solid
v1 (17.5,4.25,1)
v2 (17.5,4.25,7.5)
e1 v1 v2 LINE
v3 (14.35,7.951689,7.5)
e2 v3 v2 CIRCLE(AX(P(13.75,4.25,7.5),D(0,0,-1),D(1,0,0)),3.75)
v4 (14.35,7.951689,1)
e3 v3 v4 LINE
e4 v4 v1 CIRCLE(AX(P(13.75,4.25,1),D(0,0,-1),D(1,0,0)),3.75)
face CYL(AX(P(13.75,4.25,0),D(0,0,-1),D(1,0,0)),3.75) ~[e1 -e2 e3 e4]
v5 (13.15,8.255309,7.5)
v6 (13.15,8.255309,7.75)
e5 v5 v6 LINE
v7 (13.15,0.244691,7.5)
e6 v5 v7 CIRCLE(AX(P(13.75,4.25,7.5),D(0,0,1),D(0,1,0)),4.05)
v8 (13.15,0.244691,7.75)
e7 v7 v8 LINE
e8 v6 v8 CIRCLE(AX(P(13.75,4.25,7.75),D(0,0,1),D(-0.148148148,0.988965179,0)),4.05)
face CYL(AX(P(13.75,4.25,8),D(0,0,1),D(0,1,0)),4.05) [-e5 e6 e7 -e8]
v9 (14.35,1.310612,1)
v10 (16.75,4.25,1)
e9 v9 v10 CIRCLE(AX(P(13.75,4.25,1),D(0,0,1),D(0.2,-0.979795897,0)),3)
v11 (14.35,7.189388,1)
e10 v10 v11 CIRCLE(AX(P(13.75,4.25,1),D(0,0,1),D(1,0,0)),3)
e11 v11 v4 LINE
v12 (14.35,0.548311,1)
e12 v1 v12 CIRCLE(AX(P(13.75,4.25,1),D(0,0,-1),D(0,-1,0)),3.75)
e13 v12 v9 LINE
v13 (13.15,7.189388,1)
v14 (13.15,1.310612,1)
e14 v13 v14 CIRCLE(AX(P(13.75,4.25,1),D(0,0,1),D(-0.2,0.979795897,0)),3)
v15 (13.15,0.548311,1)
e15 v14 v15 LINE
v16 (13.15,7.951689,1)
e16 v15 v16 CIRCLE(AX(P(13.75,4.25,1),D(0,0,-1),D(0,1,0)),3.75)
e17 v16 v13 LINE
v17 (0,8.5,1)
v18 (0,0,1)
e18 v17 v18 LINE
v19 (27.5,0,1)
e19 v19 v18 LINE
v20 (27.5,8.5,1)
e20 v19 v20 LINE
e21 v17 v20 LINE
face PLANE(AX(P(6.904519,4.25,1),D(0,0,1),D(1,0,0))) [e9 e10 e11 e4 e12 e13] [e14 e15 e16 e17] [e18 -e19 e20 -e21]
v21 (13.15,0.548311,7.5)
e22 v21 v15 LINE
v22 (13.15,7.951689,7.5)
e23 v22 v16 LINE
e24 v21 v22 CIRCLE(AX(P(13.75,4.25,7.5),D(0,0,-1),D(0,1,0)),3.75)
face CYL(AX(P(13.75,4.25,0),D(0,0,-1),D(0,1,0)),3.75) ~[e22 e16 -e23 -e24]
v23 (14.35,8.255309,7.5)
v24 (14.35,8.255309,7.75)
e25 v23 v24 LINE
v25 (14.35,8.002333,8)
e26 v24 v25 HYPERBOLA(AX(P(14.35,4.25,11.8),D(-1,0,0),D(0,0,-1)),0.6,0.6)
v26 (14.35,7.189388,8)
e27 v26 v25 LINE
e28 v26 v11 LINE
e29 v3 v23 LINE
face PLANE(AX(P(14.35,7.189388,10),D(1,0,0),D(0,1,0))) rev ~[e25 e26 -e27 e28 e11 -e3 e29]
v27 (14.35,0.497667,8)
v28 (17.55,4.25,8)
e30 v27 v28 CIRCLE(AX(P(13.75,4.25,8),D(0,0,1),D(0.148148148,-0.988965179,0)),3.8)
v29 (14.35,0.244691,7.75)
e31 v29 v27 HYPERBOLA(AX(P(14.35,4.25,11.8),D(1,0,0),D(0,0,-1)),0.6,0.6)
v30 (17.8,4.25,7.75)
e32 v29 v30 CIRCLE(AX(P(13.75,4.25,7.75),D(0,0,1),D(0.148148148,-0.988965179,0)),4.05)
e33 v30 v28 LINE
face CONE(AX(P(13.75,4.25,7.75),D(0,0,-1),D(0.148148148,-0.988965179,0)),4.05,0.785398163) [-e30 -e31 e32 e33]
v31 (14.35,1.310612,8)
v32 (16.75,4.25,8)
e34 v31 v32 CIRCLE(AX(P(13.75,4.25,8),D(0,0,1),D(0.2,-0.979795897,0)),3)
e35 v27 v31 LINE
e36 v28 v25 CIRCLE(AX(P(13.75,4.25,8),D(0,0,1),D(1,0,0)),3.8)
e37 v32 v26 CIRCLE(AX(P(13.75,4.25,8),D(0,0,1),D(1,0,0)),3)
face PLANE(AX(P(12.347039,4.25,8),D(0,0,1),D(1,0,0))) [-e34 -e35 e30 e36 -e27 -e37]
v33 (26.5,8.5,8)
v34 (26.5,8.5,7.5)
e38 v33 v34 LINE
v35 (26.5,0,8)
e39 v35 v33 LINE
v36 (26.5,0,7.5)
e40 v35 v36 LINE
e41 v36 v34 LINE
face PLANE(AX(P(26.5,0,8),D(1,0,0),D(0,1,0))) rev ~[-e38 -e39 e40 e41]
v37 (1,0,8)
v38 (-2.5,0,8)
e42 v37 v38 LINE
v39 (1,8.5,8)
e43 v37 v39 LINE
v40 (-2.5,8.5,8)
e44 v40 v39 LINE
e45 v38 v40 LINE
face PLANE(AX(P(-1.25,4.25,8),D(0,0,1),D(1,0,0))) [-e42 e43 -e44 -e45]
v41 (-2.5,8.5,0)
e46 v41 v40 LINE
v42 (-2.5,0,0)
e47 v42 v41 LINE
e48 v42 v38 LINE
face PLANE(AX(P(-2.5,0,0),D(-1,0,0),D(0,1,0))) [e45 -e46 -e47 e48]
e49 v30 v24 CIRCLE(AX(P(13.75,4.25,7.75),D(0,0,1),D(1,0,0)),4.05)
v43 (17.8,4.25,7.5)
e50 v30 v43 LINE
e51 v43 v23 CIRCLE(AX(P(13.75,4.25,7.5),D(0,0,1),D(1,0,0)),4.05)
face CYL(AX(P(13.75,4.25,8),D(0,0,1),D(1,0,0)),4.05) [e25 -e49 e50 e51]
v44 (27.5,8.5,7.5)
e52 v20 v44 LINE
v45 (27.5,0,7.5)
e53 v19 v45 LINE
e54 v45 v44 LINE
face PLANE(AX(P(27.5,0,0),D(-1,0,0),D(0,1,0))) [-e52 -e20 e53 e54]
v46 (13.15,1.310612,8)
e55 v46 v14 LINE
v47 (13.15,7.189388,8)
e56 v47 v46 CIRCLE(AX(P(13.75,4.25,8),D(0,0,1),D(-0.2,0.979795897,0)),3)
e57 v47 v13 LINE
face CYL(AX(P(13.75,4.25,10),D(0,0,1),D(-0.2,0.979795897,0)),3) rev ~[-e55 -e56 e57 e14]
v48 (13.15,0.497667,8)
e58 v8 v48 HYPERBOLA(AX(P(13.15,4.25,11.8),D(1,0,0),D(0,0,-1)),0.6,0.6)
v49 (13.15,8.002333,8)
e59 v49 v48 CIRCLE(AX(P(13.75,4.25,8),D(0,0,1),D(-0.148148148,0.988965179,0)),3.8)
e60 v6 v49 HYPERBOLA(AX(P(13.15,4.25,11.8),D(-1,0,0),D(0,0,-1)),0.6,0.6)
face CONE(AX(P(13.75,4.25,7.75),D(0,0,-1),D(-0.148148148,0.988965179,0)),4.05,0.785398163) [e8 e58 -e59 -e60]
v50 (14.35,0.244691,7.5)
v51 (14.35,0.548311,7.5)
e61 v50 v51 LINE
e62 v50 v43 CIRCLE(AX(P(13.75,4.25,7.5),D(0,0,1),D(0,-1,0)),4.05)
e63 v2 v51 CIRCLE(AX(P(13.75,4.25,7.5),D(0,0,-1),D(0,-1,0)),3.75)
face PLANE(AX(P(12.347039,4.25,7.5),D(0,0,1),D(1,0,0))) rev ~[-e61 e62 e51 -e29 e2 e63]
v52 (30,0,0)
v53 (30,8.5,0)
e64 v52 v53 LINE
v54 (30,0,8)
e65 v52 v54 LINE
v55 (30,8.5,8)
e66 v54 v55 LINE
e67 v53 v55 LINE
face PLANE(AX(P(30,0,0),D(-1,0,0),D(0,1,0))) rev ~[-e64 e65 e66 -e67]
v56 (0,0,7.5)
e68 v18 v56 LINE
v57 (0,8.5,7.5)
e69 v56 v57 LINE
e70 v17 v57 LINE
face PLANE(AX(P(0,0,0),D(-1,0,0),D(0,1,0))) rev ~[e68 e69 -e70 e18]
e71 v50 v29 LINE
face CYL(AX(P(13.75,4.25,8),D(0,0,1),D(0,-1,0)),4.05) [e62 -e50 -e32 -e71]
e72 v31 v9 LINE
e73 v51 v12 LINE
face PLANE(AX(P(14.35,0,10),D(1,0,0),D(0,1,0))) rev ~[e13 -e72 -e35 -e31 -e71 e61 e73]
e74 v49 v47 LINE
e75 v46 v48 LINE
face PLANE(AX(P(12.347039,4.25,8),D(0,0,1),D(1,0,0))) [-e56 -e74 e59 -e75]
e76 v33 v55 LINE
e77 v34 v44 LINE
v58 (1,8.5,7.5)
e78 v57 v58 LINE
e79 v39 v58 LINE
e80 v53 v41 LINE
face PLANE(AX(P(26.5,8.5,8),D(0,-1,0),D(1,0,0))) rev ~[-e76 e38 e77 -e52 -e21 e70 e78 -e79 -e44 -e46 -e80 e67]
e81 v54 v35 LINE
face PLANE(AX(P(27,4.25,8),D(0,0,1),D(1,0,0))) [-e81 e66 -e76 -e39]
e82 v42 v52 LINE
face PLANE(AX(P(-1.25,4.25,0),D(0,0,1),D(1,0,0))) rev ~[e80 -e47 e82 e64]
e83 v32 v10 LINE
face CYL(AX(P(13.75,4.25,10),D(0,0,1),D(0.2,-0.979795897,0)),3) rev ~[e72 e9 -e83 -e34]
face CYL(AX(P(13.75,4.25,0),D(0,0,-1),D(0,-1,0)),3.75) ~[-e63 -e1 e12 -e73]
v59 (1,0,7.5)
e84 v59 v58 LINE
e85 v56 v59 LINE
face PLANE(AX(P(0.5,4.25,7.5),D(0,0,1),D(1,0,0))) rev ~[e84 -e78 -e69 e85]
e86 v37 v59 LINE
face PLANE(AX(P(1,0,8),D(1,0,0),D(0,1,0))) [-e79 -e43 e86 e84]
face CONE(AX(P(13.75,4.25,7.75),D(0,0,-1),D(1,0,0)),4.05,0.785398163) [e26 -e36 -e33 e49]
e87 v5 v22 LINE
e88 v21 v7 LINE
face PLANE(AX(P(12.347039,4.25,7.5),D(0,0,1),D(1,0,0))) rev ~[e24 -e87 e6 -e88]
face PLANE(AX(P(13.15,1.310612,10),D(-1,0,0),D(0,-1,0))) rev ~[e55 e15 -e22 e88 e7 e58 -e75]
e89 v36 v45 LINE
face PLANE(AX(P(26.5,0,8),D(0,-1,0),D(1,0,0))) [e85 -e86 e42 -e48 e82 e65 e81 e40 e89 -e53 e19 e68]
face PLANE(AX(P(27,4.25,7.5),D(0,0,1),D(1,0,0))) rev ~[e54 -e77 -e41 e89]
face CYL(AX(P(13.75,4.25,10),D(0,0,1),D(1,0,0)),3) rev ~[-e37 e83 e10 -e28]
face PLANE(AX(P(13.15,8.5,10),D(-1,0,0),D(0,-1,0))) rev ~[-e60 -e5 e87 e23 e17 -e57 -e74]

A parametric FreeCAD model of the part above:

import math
import FreeCAD as App
import Part
import Sketcher

V = App.Vector


def edges_at(feature, points):
    """Names of the edges that pass closest to the given points."""
    edges = feature.Shape.Edges
    near = lambda p: min(range(len(edges)), key=lambda i: edges[i].distToShape(Part.Vertex(*p))[0])
    return sorted({f"Edge{near(p) + 1}" for p in points})


def add_polygon(sketch, points):
    """Adds a closed chain of lines whose ends are joined by coincident constraints."""
    first, n = sketch.GeometryCount, len(points)
    for a, b in zip(points, points[1:] + points[:1]):
        sketch.addGeometry(Part.LineSegment(App.Vector(*a, 0), App.Vector(*b, 0)), False)
    for i in range(n):
        sketch.addConstraint(Sketcher.Constraint("Coincident", first + i, 2, first + (i + 1) % n, 1))

doc = App.newDocument("Part")
body = doc.addObject("PartDesign::Body", "Body")

# Sketch on XY plane
sketch1 = body.newObject("Sketcher::SketchObject", "Sketch")
sketch1.AttachmentSupport = (doc.getObject("XY_Plane"), [""])
sketch1.MapMode = "FlatFace"
add_polygon(sketch1, [(0, 8), (0, 0), (28, 0), (28, 8)])  # lines 0-3
sketch1.addConstraint([
    Sketcher.Constraint("Vertical", 0),
    Sketcher.Constraint("Horizontal", 1),
    Sketcher.Constraint("Vertical", 2),
    Sketcher.Constraint("Horizontal", 3),
    Sketcher.Constraint("Coincident", 0, 2, -1, 1),
    Sketcher.Constraint("DistanceX", 1, 1, 1, 2, 27.5),
    Sketcher.Constraint("DistanceY", 0, 2, 0, 1, 8.5),
])
pad1 = body.newObject("PartDesign::Pad", "Pad")
pad1.Profile = sketch1
pad1.Length = 1

# Sketch on XY plane
sketch2 = body.newObject("Sketcher::SketchObject", "Sketch001")
sketch2.AttachmentSupport = (doc.getObject("XY_Plane"), [""])
sketch2.MapMode = "FlatFace"
add_polygon(sketch2, [(-2.5, 8.5), (-2.5, 0), (0, 0), (0, 8.5)])  # lines 0-3
sketch2.addGeometry(Part.ArcOfCircle(Part.Circle(V(13.8, 4.2, 0), V(0, 0, 1), 3.8), math.radians(90), math.radians(270)), False)  # 4
sketch2.addGeometry(Part.ArcOfCircle(Part.Circle(V(13.8, 4.2, 0), V(0, 0, 1), 3.8), math.radians(-90), math.radians(0)), False)  # 5
sketch2.addGeometry(Part.ArcOfCircle(Part.Circle(V(13.8, 4.2, 0), V(0, 0, 1), 3.8), math.radians(0), math.radians(90)), False)  # 6
add_polygon(sketch2, [(27.5, 8.5), (27.5, 0), (30, 0), (30, 8.5)])  # lines 7-10
sketch2.addConstraint([
    Sketcher.Constraint("Tangent", 4, 2, 5, 1),
    Sketcher.Constraint("Tangent", 5, 2, 6, 1),
    Sketcher.Constraint("Tangent", 6, 2, 4, 1),
    Sketcher.Constraint("Vertical", 0),
    Sketcher.Constraint("Horizontal", 1),
    Sketcher.Constraint("Vertical", 2),
    Sketcher.Constraint("Horizontal", 3),
    Sketcher.Constraint("Vertical", 7),
    Sketcher.Constraint("Horizontal", 8),
    Sketcher.Constraint("Vertical", 9),
    Sketcher.Constraint("Horizontal", 10),
    Sketcher.Constraint("Coincident", 1, 2, -1, 1),
    Sketcher.Constraint("PointOnObject", 7, 2, -1),
    Sketcher.Constraint("Horizontal", 6, 3, 5, 2),
    Sketcher.Constraint("Horizontal", 3, 2, 9, 2),
    Sketcher.Constraint("Vertical", 6, 3, 4, 2),
    Sketcher.Constraint("Vertical", 4, 2, 6, 2),
    Sketcher.Constraint("Equal", 3, 8),
    Sketcher.Constraint("Radius", 4, 3.75),
    Sketcher.Constraint("DistanceX", 1, 1, 1, 2, 2.5),
    Sketcher.Constraint("DistanceY", 0, 2, 0, 1, 8.5),
    Sketcher.Constraint("DistanceY", -1, 1, 6, 2, 8.0),
    Sketcher.Constraint("DistanceX", -1, 1, 8, 2, 30.0),
    Sketcher.Constraint("DistanceX", 5, 2, 7, 2, 10.0),
])
pad2 = body.newObject("PartDesign::Pad", "Pad001")
pad2.Profile = sketch2
pad2.Length = 8

# Sketch on XY plane
sketch3 = body.newObject("Sketcher::SketchObject", "Sketch002")
sketch3.AttachmentSupport = (doc.getObject("XY_Plane"), [""])
sketch3.MapMode = "FlatFace"
sketch3.AttachmentOffset = App.Placement(V(0, 0, 8), App.Rotation())
add_polygon(sketch3, [(26.5, 8.5), (26.5, 0), (27.5, 0), (27.5, 8.5)])  # lines 0-3
add_polygon(sketch3, [(0, 8.5), (0, 0), (1, 0), (1, 8.5)])  # lines 4-7
sketch3.addGeometry(Part.ArcOfCircle(Part.Circle(V(13.8, 4.2, 0), V(0, 0, 1), 4), math.radians(90), math.radians(270)), False)  # 8
sketch3.addGeometry(Part.ArcOfCircle(Part.Circle(V(13.8, 4.2, 0), V(0, 0, 1), 4), math.radians(-90), math.radians(0)), False)  # 9
sketch3.addGeometry(Part.ArcOfCircle(Part.Circle(V(13.8, 4.2, 0), V(0, 0, 1), 4), math.radians(0), math.radians(90)), False)  # 10
sketch3.addConstraint([
    Sketcher.Constraint("Tangent", 8, 2, 9, 1),
    Sketcher.Constraint("Tangent", 9, 2, 10, 1),
    Sketcher.Constraint("Tangent", 10, 2, 8, 1),
    Sketcher.Constraint("Vertical", 0),
    Sketcher.Constraint("Horizontal", 1),
    Sketcher.Constraint("Vertical", 2),
    Sketcher.Constraint("Horizontal", 3),
    Sketcher.Constraint("Vertical", 4),
    Sketcher.Constraint("Horizontal", 5),
    Sketcher.Constraint("Vertical", 6),
    Sketcher.Constraint("Horizontal", 7),
    Sketcher.Constraint("Coincident", 4, 2, -1, 1),
    Sketcher.Constraint("PointOnObject", 0, 2, -1),
    Sketcher.Constraint("Horizontal", 3, 2, 6, 2),
    Sketcher.Constraint("Horizontal", 10, 3, 9, 2),
    Sketcher.Constraint("Vertical", 10, 3, 8, 2),
    Sketcher.Constraint("Vertical", 8, 2, 10, 2),
    Sketcher.Constraint("Equal", 3, 5),
    Sketcher.Constraint("DistanceX", 1, 1, 1, 2, 1.0),
    Sketcher.Constraint("Radius", 8, 4.05),
    Sketcher.Constraint("DistanceY", 0, 2, 0, 1, 8.5),
    Sketcher.Constraint("DistanceX", -1, 1, 0, 2, 26.5),
    Sketcher.Constraint("DistanceY", -1, 1, 8, 2, 0.2),
    Sketcher.Constraint("DistanceX", -1, 1, 9, 2, 17.8),
])
pad3 = body.newObject("PartDesign::Pad", "Pad002")
pad3.Profile = sketch3
pad3.Length = 0.5
pad3.Reversed = True

# Sketch on XY plane
sketch4 = body.newObject("Sketcher::SketchObject", "Sketch003")
sketch4.AttachmentSupport = (doc.getObject("XY_Plane"), [""])
sketch4.MapMode = "FlatFace"
sketch4.AttachmentOffset = App.Placement(V(0, 0, 10), App.Rotation())
sketch4.addGeometry([
    Part.LineSegment(V(14.3, 0, 0), V(14.3, 1.3, 0)),  # 0
    Part.ArcOfCircle(Part.Circle(V(13.8, 4.2, 0), V(0, 0, 1), 3), math.radians(-78), math.radians(0)),  # 1
    Part.ArcOfCircle(Part.Circle(V(13.8, 4.2, 0), V(0, 0, 1), 3), math.radians(0), math.radians(78)),  # 2
    Part.LineSegment(V(14.3, 7.2, 0), V(14.3, 8.5, 0)),  # 3
    Part.LineSegment(V(14.3, 8.5, 0), V(13.2, 8.5, 0)),  # 4
    Part.LineSegment(V(13.2, 8.5, 0), V(13.2, 7.2, 0)),  # 5
    Part.ArcOfCircle(Part.Circle(V(13.8, 4.2, 0), V(0, 0, 1), 3), math.radians(102), math.radians(258)),  # 6
    Part.LineSegment(V(13.2, 1.3, 0), V(13.2, 0, 0)),  # 7
    Part.LineSegment(V(13.2, 0, 0), V(14.3, 0, 0)),  # 8
], False)
sketch4.addConstraint([
    Sketcher.Constraint("Coincident", 0, 2, 1, 1),
    Sketcher.Constraint("Tangent", 1, 2, 2, 1),
    Sketcher.Constraint("Coincident", 2, 2, 3, 1),
    Sketcher.Constraint("Coincident", 3, 2, 4, 1),
    Sketcher.Constraint("Coincident", 4, 2, 5, 1),
    Sketcher.Constraint("Coincident", 5, 2, 6, 1),
    Sketcher.Constraint("Coincident", 6, 2, 7, 1),
    Sketcher.Constraint("Coincident", 7, 2, 8, 1),
    Sketcher.Constraint("Coincident", 8, 2, 0, 1),
    Sketcher.Constraint("Vertical", 0),
    Sketcher.Constraint("Vertical", 3),
    Sketcher.Constraint("Horizontal", 4),
    Sketcher.Constraint("Vertical", 5),
    Sketcher.Constraint("Vertical", 7),
    Sketcher.Constraint("Horizontal", 8),
    Sketcher.Constraint("Coincident", 6, 3, 1, 3),
    Sketcher.Constraint("Equal", 1, 2),
    Sketcher.Constraint("Equal", 2, 6),
    Sketcher.Constraint("PointOnObject", 7, 2, -1),
    Sketcher.Constraint("Horizontal", 6, 3, 1, 2),
    Sketcher.Constraint("Horizontal", 2, 2, 5, 2),
    Sketcher.Constraint("Horizontal", 0, 2, 6, 2),
    Sketcher.Constraint("Vertical", 0, 2, 2, 2),
    Sketcher.Constraint("Equal", 0, 3),
    Sketcher.Constraint("Radius", 1, 3.0),
    Sketcher.Constraint("DistanceX", 4, 2, 4, 1, 1.2),
    Sketcher.Constraint("DistanceY", -1, 1, 3, 2, 8.5),
    Sketcher.Constraint("DistanceX", -1, 1, 1, 3, 13.75),
])
pocket1 = body.newObject("PartDesign::Pocket", "Pocket")
pocket1.Profile = sketch4
pocket1.Length = 9
doc.recompute()

chamfer = body.newObject("PartDesign::Chamfer", "Chamfer")
chamfer.Base = (pocket1, edges_at(pocket1, [(9.7, 4.25, 8), (16.819, 1.607, 8)]))
chamfer.Size = 0.25

doc.recompute()
